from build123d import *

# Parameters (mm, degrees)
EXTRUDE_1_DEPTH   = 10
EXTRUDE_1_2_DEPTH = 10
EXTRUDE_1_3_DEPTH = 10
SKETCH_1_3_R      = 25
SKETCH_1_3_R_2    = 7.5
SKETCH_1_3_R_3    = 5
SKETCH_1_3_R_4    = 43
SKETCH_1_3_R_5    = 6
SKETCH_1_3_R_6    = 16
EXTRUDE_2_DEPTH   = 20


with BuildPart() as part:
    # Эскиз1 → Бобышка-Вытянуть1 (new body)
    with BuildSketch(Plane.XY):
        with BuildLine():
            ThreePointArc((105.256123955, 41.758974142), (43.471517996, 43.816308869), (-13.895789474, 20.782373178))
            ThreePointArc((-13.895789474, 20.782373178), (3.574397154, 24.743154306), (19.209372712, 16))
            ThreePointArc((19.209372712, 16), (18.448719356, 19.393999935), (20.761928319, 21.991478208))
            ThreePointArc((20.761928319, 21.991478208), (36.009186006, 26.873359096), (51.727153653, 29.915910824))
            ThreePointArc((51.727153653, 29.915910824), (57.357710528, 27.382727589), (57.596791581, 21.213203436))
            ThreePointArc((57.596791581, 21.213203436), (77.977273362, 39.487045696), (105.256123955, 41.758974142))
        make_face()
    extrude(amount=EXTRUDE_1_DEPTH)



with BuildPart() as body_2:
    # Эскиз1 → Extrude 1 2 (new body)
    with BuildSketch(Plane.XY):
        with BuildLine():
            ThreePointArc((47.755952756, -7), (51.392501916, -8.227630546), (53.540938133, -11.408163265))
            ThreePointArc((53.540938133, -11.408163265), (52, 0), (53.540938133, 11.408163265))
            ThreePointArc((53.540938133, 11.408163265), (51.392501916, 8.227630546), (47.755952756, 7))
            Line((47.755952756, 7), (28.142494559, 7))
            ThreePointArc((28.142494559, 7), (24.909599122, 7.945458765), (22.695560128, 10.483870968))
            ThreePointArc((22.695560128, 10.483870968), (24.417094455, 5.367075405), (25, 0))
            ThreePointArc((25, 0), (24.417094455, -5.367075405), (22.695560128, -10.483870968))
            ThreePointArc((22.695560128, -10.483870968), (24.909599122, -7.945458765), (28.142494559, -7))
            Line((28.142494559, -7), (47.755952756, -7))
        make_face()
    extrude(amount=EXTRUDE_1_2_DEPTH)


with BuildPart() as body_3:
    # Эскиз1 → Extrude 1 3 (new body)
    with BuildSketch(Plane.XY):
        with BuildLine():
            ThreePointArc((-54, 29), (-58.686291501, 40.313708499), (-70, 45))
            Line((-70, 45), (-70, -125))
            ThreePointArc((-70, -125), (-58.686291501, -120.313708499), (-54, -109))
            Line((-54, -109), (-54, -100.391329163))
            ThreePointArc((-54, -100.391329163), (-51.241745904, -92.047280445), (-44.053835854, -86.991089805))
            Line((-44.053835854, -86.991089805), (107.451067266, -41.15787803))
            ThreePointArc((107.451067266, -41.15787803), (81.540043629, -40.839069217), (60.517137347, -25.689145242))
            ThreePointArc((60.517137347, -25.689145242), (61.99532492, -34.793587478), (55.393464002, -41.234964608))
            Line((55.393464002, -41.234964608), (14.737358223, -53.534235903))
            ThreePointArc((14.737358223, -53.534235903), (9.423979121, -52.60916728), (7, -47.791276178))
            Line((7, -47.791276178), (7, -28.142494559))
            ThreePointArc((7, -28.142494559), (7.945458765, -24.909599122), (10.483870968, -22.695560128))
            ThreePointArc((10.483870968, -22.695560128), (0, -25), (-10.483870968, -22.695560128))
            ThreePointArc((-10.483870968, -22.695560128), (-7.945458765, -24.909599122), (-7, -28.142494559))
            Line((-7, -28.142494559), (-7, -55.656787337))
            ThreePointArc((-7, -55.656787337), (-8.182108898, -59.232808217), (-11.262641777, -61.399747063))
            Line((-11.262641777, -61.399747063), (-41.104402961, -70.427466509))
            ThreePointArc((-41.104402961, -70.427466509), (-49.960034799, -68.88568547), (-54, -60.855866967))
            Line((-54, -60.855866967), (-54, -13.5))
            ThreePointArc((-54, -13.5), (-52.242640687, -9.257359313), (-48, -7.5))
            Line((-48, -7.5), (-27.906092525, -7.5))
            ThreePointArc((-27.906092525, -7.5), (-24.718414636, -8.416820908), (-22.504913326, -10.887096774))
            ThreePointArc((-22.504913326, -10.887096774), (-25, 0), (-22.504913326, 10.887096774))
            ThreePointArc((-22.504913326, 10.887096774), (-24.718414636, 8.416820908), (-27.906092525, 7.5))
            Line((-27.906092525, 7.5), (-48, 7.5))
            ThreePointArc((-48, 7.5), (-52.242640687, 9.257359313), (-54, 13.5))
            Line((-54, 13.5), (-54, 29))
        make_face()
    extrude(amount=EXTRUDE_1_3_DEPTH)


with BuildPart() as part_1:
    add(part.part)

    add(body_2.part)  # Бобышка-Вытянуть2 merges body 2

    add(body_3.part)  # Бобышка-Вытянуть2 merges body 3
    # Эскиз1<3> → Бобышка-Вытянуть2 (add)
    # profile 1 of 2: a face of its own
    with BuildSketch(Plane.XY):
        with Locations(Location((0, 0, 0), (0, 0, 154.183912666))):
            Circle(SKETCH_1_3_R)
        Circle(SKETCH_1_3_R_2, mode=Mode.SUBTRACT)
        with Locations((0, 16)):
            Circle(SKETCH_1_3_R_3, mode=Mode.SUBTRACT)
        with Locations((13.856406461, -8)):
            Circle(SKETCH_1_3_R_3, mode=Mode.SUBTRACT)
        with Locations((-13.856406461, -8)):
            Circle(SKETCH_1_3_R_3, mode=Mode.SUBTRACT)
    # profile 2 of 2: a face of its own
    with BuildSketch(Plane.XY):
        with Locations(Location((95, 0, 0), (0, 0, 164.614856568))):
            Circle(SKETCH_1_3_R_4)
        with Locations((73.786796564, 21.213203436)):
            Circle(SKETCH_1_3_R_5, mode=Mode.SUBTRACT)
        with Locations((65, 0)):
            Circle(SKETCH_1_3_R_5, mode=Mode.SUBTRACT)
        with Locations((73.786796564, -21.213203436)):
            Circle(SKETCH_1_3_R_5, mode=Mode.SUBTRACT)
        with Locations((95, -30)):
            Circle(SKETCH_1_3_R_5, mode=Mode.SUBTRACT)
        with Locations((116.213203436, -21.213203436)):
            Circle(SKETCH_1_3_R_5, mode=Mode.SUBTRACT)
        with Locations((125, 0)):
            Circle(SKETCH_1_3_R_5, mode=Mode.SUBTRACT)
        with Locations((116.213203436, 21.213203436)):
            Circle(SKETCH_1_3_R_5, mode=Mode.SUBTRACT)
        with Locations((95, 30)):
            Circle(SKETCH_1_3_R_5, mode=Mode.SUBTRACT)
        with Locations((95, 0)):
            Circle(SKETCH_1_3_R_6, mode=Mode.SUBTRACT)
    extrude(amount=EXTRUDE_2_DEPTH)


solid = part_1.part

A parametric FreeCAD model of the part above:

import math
import FreeCAD as App
import Part
import Sketcher
from FreeCAD import Vector

doc = App.newDocument("Part")
params = doc.addObject("Spreadsheet::Sheet", "Params")
for row, (alias, value) in enumerate([
    ("sketch1_radius", "150 mm"),
    ("sketch1_radius2", "25 mm"),
    ("sketch1_radius3", "135 mm"),
    ("sketch1_radius4", "43 mm"),
    ("pad1_length", "10 mm"),
    ("sketch2_radius", "6 mm"),
    ("sketch2_radius2", "43 mm"),
    ("sketch2_radius3", "25 mm"),
    ("pad2_length", "10 mm"),
    ("sketch3_radius", "16 mm"),
    ("sketch3_radius2", "14 mm"),
    ("sketch3_radius3", "43 mm"),
    ("sketch3_radius4", "10 mm"),
    ("sketch3_radius5", "6 mm"),
    ("pad3_length", "10 mm"),
    ("sketch4_diameter", "50 mm"),
    ("sketch4_diameter2", "10 mm"),
    ("sketch4_diameter3", "15 mm"),
    ("sketch4_diameter4", "86 mm"),
    ("sketch4_diameter5", "12 mm"),
    ("pad4_length", "20 mm"),
], start=1):
    params.set(f"A{row}", alias)
    params.set(f"B{row}", "=" + value)
    params.setAlias(f"B{row}", alias)

body = doc.addObject("PartDesign::Body", "Body")

sketch1 = body.newObject("Sketcher::SketchObject", "Sketch")
sketch1.AttachmentSupport = (doc.getObject("XY_Plane"), [""])
sketch1.MapMode = "FlatFace"
sketch1.addGeometry([
    Part.ArcOfCircle(Part.Circle(Vector(69.5, -103.9, 0), Vector(0, 0, 1), 150), math.radians(76), math.radians(124)),
    Part.ArcOfCircle(Part.Circle(Vector(0, 0, 0), Vector(0, 0, 1), 25), math.radians(40), math.radians(124)),
    Part.ArcOfCircle(Part.Circle(Vector(22.1, 18.4, 0), Vector(0, 0, 1), 3.8), math.radians(111), math.radians(220)),
    Part.ArcOfCircle(Part.Circle(Vector(69.5, -103.9, 0), Vector(0, 0, 1), 135), math.radians(97.56), math.radians(111.15)),
    Part.ArcOfCircle(Part.Circle(Vector(52.5, 24.1, 0), Vector(0, 0, 1), 5.9), math.radians(-30), math.radians(98)),
    Part.ArcOfCircle(Part.Circle(Vector(95, 0, 0), Vector(0, 0, 1), 43), math.radians(76), math.radians(150)),
], False)
sketch1.addConstraint([
    Sketcher.Constraint("Tangent", 0, 2, 1, 2),
    Sketcher.Constraint("Tangent", 1, 1, 2, 2),
    Sketcher.Constraint("Tangent", 2, 1, 3, 2),
    Sketcher.Constraint("Tangent", 3, 1, 4, 2),
    Sketcher.Constraint("Tangent", 4, 1, 5, 2),
    Sketcher.Constraint("Tangent", 5, 1, 0, 1),
    Sketcher.Constraint("Coincident", 1, 3, -1, 1),
    Sketcher.Constraint("Coincident", 3, 3, 0, 3),
    Sketcher.Constraint("PointOnObject", 5, 3, -1),
    Sketcher.Constraint("Radius", 0, 150.0),
    Sketcher.Constraint("Radius", 1, 25.0),
    Sketcher.Constraint("Radius", 3, 135.0),
    Sketcher.Constraint("Radius", 5, 43.0),
    Sketcher.Constraint("DistanceX", -1, 1, 5, 3, 95.0),
    Sketcher.Constraint("DistanceY", -1, 1, 1, 1, 16.0),
    Sketcher.Constraint("Radius", 4, 5.861802),
])
sketch1.setExpression("Constraints[9]", "Params.sketch1_radius")
sketch1.setExpression("Constraints[10]", "Params.sketch1_radius2")
sketch1.setExpression("Constraints[11]", "Params.sketch1_radius3")
sketch1.setExpression("Constraints[12]", "Params.sketch1_radius4")
pad1 = body.newObject("PartDesign::Pad", "Pad")
pad1.Profile = sketch1
pad1.setExpression("Length", "Params.pad1_length")
body2 = doc.addObject("PartDesign::Body", "Body001")

sketch2 = body2.newObject("Sketcher::SketchObject", "Sketch001")
sketch2.AttachmentSupport = (doc.getObject("XY_Plane001"), [""])
sketch2.MapMode = "FlatFace"
sketch2.addGeometry([
    Part.ArcOfCircle(Part.Circle(Vector(48, -13, 0), Vector(0, 0, 1), 6), math.radians(15), math.radians(90)),
    Part.ArcOfCircle(Part.Circle(Vector(95, 0, 0), Vector(0, 0, 1), 43), math.radians(165), math.radians(195)),
    Part.ArcOfCircle(Part.Circle(Vector(48, 13, 0), Vector(0, 0, 1), 6), math.radians(-90), math.radians(-15)),
    Part.LineSegment(Vector(48, 7, 0), Vector(28, 7, 0)),
    Part.ArcOfCircle(Part.Circle(Vector(28, 13, 0), Vector(0, 0, 1), 6), math.radians(-155), math.radians(-90)),
    Part.ArcOfCircle(Part.Circle(Vector(0, 0, 0), Vector(0, 0, 1), 25), math.radians(0), math.radians(25)),
    Part.ArcOfCircle(Part.Circle(Vector(0, 0, 0), Vector(0, 0, 1), 25), math.radians(-25), math.radians(0)),
    Part.ArcOfCircle(Part.Circle(Vector(28, -13, 0), Vector(0, 0, 1), 6), math.radians(90), math.radians(155)),
    Part.LineSegment(Vector(28, -7, 0), Vector(48, -7, 0)),
], False)
sketch2.addConstraint([
    Sketcher.Constraint("Tangent", 0, 1, 1, 2),
    Sketcher.Constraint("Tangent", 1, 1, 2, 2),
    Sketcher.Constraint("Tangent", 2, 1, 3, 1),
    Sketcher.Constraint("Tangent", 3, 2, 4, 2),
    Sketcher.Constraint("Tangent", 4, 1, 5, 2),
    Sketcher.Constraint("Tangent", 5, 1, 6, 2),
    Sketcher.Constraint("Tangent", 6, 1, 7, 2),
    Sketcher.Constraint("Tangent", 7, 1, 8, 1),
    Sketcher.Constraint("Tangent", 8, 2, 0, 2),
    Sketcher.Constraint("Horizontal", 3),
    Sketcher.Constraint("Horizontal", 8),
    Sketcher.Constraint("Coincident", 5, 3, -1, 1),
    Sketcher.Constraint("Equal", 0, 2),
    Sketcher.Constraint("Equal", 2, 4),
    Sketcher.Constraint("Equal", 5, 6),
    Sketcher.Constraint("Equal", 4, 7),
    Sketcher.Constraint("Symmetric", 0, 3, 2, 3, -1),
    Sketcher.Constraint("PointOnObject", 5, 1, -1),
    Sketcher.Constraint("Radius", 0, 6.0),
    Sketcher.Constraint("Radius", 1, 43.0),
    Sketcher.Constraint("Radius", 5, 25.0),
    Sketcher.Constraint("DistanceY", 0, 3, -1, 1, 13.0),
    Sketcher.Constraint("DistanceX", -1, 1, 1, 3, 95.0),
])
sketch2.setExpression("Constraints[18]", "Params.sketch2_radius")
sketch2.setExpression("Constraints[19]", "Params.sketch2_radius2")
sketch2.setExpression("Constraints[20]", "Params.sketch2_radius3")
pad2 = body2.newObject("PartDesign::Pad", "Pad001")
pad2.Profile = sketch2
pad2.setExpression("Length", "Params.pad2_length")
body3 = doc.addObject("PartDesign::Body", "Body002")

sketch3 = body3.newObject("Sketcher::SketchObject", "Sketch002")
sketch3.AttachmentSupport = (doc.getObject("XY_Plane002"), [""])
sketch3.MapMode = "FlatFace"
sketch3.addGeometry([
    Part.ArcOfCircle(Part.Circle(Vector(-70, 29, 0), Vector(0, 0, 1), 16), math.radians(0), math.radians(90)),
    Part.LineSegment(Vector(-70, 45, 0), Vector(-70, -125, 0)),
    Part.ArcOfCircle(Part.Circle(Vector(-70, -109, 0), Vector(0, 0, 1), 16), math.radians(-90), math.radians(0)),
    Part.LineSegment(Vector(-54, -109, 0), Vector(-54, -100, 0)),
    Part.ArcOfCircle(Part.Circle(Vector(-40, -100, 0), Vector(0, 0, 1), 14), math.radians(107), math.radians(180)),
    Part.LineSegment(Vector(-44, -87, 0), Vector(107, -41, 0)),
    Part.ArcOfCircle(Part.Circle(Vector(95, 0, 0), Vector(0, 0, 1), 43), math.radians(-143), math.radians(-73)),
    Part.ArcOfCircle(Part.Circle(Vector(52, -32, 0), Vector(0, 0, 1), 10), math.radians(-73), math.radians(37)),
    Part.LineSegment(Vector(55, -41, 0), Vector(15, -54, 0)),
    Part.ArcOfCircle(Part.Circle(Vector(13, -48, 0), Vector(0, 0, 1), 6), math.radians(180), math.radians(287)),
    Part.LineSegment(Vector(7, -48, 0), Vector(7, -28, 0)),
    Part.ArcOfCircle(Part.Circle(Vector(13, -28, 0), Vector(0, 0, 1), 6), math.radians(115), math.radians(180)),
    Part.ArcOfCircle(Part.Circle(Vector(0, 0, 0), Vector(0, 0, 1), 25), math.radians(-115), math.radians(-65)),
    Part.ArcOfCircle(Part.Circle(Vector(-13, -28, 0), Vector(0, 0, 1), 6), math.radians(0), math.radians(65)),
    Part.LineSegment(Vector(-7, -28, 0), Vector(-7, -56, 0)),
    Part.ArcOfCircle(Part.Circle(Vector(-13, -56, 0), Vector(0, 0, 1), 6), math.radians(-73), math.radians(0)),
    Part.LineSegment(Vector(-11, -61, 0), Vector(-41, -70, 0)),
    Part.ArcOfCircle(Part.Circle(Vector(-44, -61, 0), Vector(0, 0, 1), 10), math.radians(-180), math.radians(-73)),
    Part.LineSegment(Vector(-54, -61, 0), Vector(-54, -14, 0)),
    Part.ArcOfCircle(Part.Circle(Vector(-48, -14, 0), Vector(0, 0, 1), 6), math.radians(90), math.radians(180)),
    Part.LineSegment(Vector(-48, -8, 0), Vector(-28, -8, 0)),
    Part.ArcOfCircle(Part.Circle(Vector(-28, -14, 0), Vector(0, 0, 1), 6), math.radians(26), math.radians(90)),
    Part.ArcOfCircle(Part.Circle(Vector(0, 0, 0), Vector(0, 0, 1), 25), math.radians(154), math.radians(206)),
    Part.ArcOfCircle(Part.Circle(Vector(-28, 14, 0), Vector(0, 0, 1), 6), math.radians(-90), math.radians(-26)),
    Part.LineSegment(Vector(-28, 8, 0), Vector(-48, 8, 0)),
    Part.ArcOfCircle(Part.Circle(Vector(-48, 14, 0), Vector(0, 0, 1), 6), math.radians(180), math.radians(270)),
    Part.LineSegment(Vector(-54, 14, 0), Vector(-54, 29, 0)),
], False)
sketch3.addConstraint([
    Sketcher.Constraint("Coincident", 0, 2, 1, 1),
    Sketcher.Constraint("Coincident", 1, 2, 2, 1),
    Sketcher.Constraint("Tangent", 2, 2, 3, 1),
    Sketcher.Constraint("Tangent", 3, 2, 4, 2),
    Sketcher.Constraint("Tangent", 4, 1, 5, 1),
    Sketcher.Constraint("Tangent", 5, 2, 6, 2),
    Sketcher.Constraint("Tangent", 6, 1, 7, 2),
    Sketcher.Constraint("Tangent", 7, 1, 8, 1),
    Sketcher.Constraint("Tangent", 8, 2, 9, 2),
    Sketcher.Constraint("Tangent", 9, 1, 10, 1),
    Sketcher.Constraint("Tangent", 10, 2, 11, 2),
    Sketcher.Constraint("Tangent", 11, 1, 12, 2),
    Sketcher.Constraint("Tangent", 12, 1, 13, 2),
    Sketcher.Constraint("Tangent", 13, 1, 14, 1),
    Sketcher.Constraint("Tangent", 14, 2, 15, 2),
    Sketcher.Constraint("Tangent", 15, 1, 16, 1),
    Sketcher.Constraint("Tangent", 16, 2, 17, 2),
    Sketcher.Constraint("Tangent", 17, 1, 18, 1),
    Sketcher.Constraint("Tangent", 18, 2, 19, 2),
    Sketcher.Constraint("Tangent", 19, 1, 20, 1),
    Sketcher.Constraint("Tangent", 20, 2, 21, 2),
    Sketcher.Constraint("Tangent", 21, 1, 22, 2),
    Sketcher.Constraint("Tangent", 22, 1, 23, 2),
    Sketcher.Constraint("Tangent", 23, 1, 24, 1),
    Sketcher.Constraint("Tangent", 24, 2, 25, 2),
    Sketcher.Constraint("Tangent", 25, 1, 26, 1),
    Sketcher.Constraint("Tangent", 26, 2, 0, 1),
    Sketcher.Constraint("Vertical", 1),
    Sketcher.Constraint("Vertical", 3),
    Sketcher.Constraint("Vertical", 10),
    Sketcher.Constraint("Vertical", 14),
    Sketcher.Constraint("Vertical", 18),
    Sketcher.Constraint("Horizontal", 20),
    Sketcher.Constraint("Horizontal", 24),
    Sketcher.Constraint("Vertical", 26),
    Sketcher.Constraint("Coincident", 12, 3, -1, 1),
    Sketcher.Constraint("Coincident", 22, 3, -1, 1),
    Sketcher.Constraint("Equal", 0, 2),
    Sketcher.Constraint("Equal", 9, 11),
    Sketcher.Constraint("Equal", 11, 13),
    Sketcher.Constraint("Equal", 13, 15),
    Sketcher.Constraint("Equal", 7, 17),
    Sketcher.Constraint("Equal", 15, 19),
    Sketcher.Constraint("Equal", 19, 21),
    Sketcher.Constraint("Equal", 12, 22),
    Sketcher.Constraint("Equal", 21, 23),
    Sketcher.Constraint("Equal", 23, 25),
    Sketcher.Constraint("Symmetric", 19, 3, 25, 3, -1),
    Sketcher.Constraint("PointOnObject", 6, 3, -1),
    Sketcher.Constraint("Parallel", 5, 8),
    Sketcher.Constraint("Parallel", 8, 16),
    Sketcher.Constraint("Horizontal", 11, 3, 13, 3),
    Sketcher.Constraint("Vertical", 0, 3, 2, 3),
    Sketcher.Constraint("Vertical", 2, 3, 0, 2),
    Sketcher.Constraint("Radius", 0, 16.0),
    Sketcher.Constraint("Radius", 4, 14.0),
    Sketcher.Constraint("Radius", 6, 43.0),
    Sketcher.Constraint("Radius", 7, 10.0),
    Sketcher.Constraint("Radius", 9, 6.0),
    Sketcher.Constraint("Radius", 12, 25.0),
    Sketcher.Constraint("DistanceY", 1, 2, 1, 1, 170.0),
    Sketcher.Constraint("DistanceY", 26, 1, 26, 2, 15.5),
    Sketcher.Constraint("DistanceX", 0, 3, -1, 1, 70.0),
    Sketcher.Constraint("DistanceY", -1, 1, 0, 3, 29.0),
    Sketcher.Constraint("DistanceX", -1, 1, 6, 3, 95.0),
    Sketcher.Constraint("DistanceX", -1, 1, 9, 3, 13.0),
    Sketcher.Constraint("DistanceY", 3, 1, 3, 2, 8.608671),
    Sketcher.Constraint("DistanceY", 10, 1, 10, 2, 19.648782),
    Sketcher.Constraint("DistanceY", 14, 2, 14, 1, 27.514293),
])
sketch3.setExpression("Constraints[54]", "Params.sketch3_radius")
sketch3.setExpression("Constraints[55]", "Params.sketch3_radius2")
sketch3.setExpression("Constraints[56]", "Params.sketch3_radius3")
sketch3.setExpression("Constraints[57]", "Params.sketch3_radius4")
sketch3.setExpression("Constraints[58]", "Params.sketch3_radius5")
pad3 = body3.newObject("PartDesign::Pad", "Pad002")
pad3.Profile = sketch3
pad3.setExpression("Length", "Params.pad3_length")
body.AllowCompound = True
doc.recompute()

boolean = body.newObject("PartDesign::Boolean", "Boolean")
boolean.Type = "Fuse"
boolean.addObjects([body2])
doc.recompute()

boolean2 = body.newObject("PartDesign::Boolean", "Boolean001")
boolean2.Type = "Fuse"
boolean2.addObjects([body3])

sketch4 = body.newObject("Sketcher::SketchObject", "Sketch003")
sketch4.AttachmentSupport = (doc.getObject("XY_Plane"), [""])
sketch4.MapMode = "FlatFace"
sketch4.addGeometry([
    Part.Circle(Vector(0, 0, 0), Vector(0, 0, 1), 25),
    Part.Circle(Vector(0, 16, 0), Vector(0, 0, 1), 5),
    Part.Circle(Vector(14, -8, 0), Vector(0, 0, 1), 5),
    Part.Circle(Vector(0, 0, 0), Vector(0, 0, 1), 8),
    Part.Circle(Vector(-14, -8, 0), Vector(0, 0, 1), 5),
    Part.Circle(Vector(95, 0, 0), Vector(0, 0, 1), 43),
    Part.Circle(Vector(116, 21, 0), Vector(0, 0, 1), 6),
    Part.Circle(Vector(125, 0, 0), Vector(0, 0, 1), 6),
    Part.Circle(Vector(95, 30, 0), Vector(0, 0, 1), 6),
    Part.Circle(Vector(74, 21, 0), Vector(0, 0, 1), 6),
    Part.Circle(Vector(116, -21, 0), Vector(0, 0, 1), 6),
    Part.Circle(Vector(95, 0, 0), Vector(0, 0, 1), 16),
    Part.Circle(Vector(95, -30, 0), Vector(0, 0, 1), 6),
    Part.Circle(Vector(65, 0, 0), Vector(0, 0, 1), 6),
    Part.Circle(Vector(74, -21, 0), Vector(0, 0, 1), 6),
], False)
sketch4.addConstraint([
    Sketcher.Constraint("Coincident", 0, 3, -1, 1),
    Sketcher.Constraint("Coincident", 3, 3, -1, 1),
    Sketcher.Constraint("Coincident", 11, 3, 5, 3),
    Sketcher.Constraint("Equal", 1, 2),
    Sketcher.Constraint("Equal", 2, 4),
    Sketcher.Constraint("Equal", 6, 7),
    Sketcher.Constraint("Equal", 7, 8),
    Sketcher.Constraint("Equal", 8, 9),
    Sketcher.Constraint("Equal", 9, 10),
    Sketcher.Constraint("Equal", 10, 12),
    Sketcher.Constraint("Equal", 12, 13),
    Sketcher.Constraint("Equal", 13, 14),
    Sketcher.Constraint("Symmetric", 2, 3, 4, 3, -2),
    Sketcher.Constraint("Symmetric", 6, 3, 10, 3, -1),
    Sketcher.Constraint("Symmetric", 8, 3, 12, 3, -1),
    Sketcher.Constraint("Symmetric", 9, 3, 14, 3, -1),
    Sketcher.Constraint("PointOnObject", 1, 3, -2),
    Sketcher.Constraint("PointOnObject", 5, 3, -1),
    Sketcher.Constraint("PointOnObject", 7, 3, -1),
    Sketcher.Constraint("PointOnObject", 13, 3, -1),
    Sketcher.Constraint("Horizontal", 6, 3, 9, 3),
    Sketcher.Constraint("Vertical", 5, 3, 8, 3),
    Sketcher.Constraint("Diameter", 0, 50.0),
    Sketcher.Constraint("Diameter", 1, 10.0),
    Sketcher.Constraint("Diameter", 3, 15.0),
    Sketcher.Constraint("Diameter", 5, 86.0),
    Sketcher.Constraint("Diameter", 6, 12.0),
    Sketcher.Constraint("Diameter", 11, 32.0),
    Sketcher.Constraint("DistanceY", -1, 1, 1, 3, 16.0),
    Sketcher.Constraint("DistanceY", 2, 3, -1, 1, 8.0),
    Sketcher.Constraint("DistanceX", -1, 1, 5, 3, 95.0),
    Sketcher.Constraint("DistanceX", -1, 1, 7, 3, 125.0),
    Sketcher.Constraint("DistanceY", -1, 1, 8, 3, 30.0),
    Sketcher.Constraint("DistanceX", -1, 1, 13, 3, 65.0),
    Sketcher.Constraint("DistanceX", 2, 3, 9, 3, 59.93039),
    Sketcher.Constraint("DistanceX", -1, 1, 2, 3, 13.856406),
    Sketcher.Constraint("DistanceX", -1, 1, 6, 3, 116.213203),
    Sketcher.Constraint("DistanceY", -1, 1, 6, 3, 21.213203),
])
sketch4.setExpression("Constraints[22]", "Params.sketch4_diameter")
sketch4.setExpression("Constraints[23]", "Params.sketch4_diameter2")
sketch4.setExpression("Constraints[24]", "Params.sketch4_diameter3")
sketch4.setExpression("Constraints[25]", "Params.sketch4_diameter4")
sketch4.setExpression("Constraints[26]", "Params.sketch4_diameter5")
pad4 = body.newObject("PartDesign::Pad", "Pad003")
pad4.Profile = sketch4
pad4.setExpression("Length", "Params.pad4_length")

doc.recompute()
